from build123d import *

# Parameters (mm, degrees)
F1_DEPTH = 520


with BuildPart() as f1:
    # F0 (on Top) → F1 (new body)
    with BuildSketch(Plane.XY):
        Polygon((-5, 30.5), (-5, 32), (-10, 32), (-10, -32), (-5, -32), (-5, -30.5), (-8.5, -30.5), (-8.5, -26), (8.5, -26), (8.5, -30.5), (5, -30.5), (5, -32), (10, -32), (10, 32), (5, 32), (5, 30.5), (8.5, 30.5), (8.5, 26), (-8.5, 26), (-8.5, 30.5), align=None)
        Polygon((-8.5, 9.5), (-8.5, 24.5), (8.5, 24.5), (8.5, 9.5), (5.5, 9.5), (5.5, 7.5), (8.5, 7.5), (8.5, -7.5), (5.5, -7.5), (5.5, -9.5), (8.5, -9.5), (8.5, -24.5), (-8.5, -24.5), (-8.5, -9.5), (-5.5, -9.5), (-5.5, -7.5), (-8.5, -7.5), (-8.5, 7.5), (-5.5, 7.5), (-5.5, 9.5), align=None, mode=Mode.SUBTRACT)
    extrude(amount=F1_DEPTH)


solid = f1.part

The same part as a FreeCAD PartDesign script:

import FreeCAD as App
import Part
import Sketcher

V = App.Vector
Q = App.Units.Quantity

doc = App.newDocument("Part")
params = doc.addObject("Spreadsheet::Sheet", "Params")
for row, (alias, value) in enumerate([
    ("sketch1_width", "5 mm"),
    ("sketch1_width2", "17 mm"),
    ("sketch1_width3", "3 mm"),
    ("sketch1_height", "64 mm"),
    ("sketch1_height2", "15 mm"),
    ("pad1_length", "520 mm"),
], start=1):
    params.set(f"A{row}", alias)
    params.set(f"B{row}", "=" + value)
    params.setAlias(f"B{row}", alias)

body = doc.addObject("PartDesign::Body", "Body")

# Sketch on XY plane
sketch1 = body.newObject("Sketcher::SketchObject", "Sketch")
sketch1.AttachmentSupport = (doc.getObject("XY_Plane"), [""])
sketch1.MapMode = "FlatFace"
sketch1.addGeometry(Part.LineSegment(V(-5, 30.5, 0), V(-5, 32, 0)), False)
sketch1.addGeometry(Part.LineSegment(V(-5, 32, 0), V(-10, 32, 0)), False)
sketch1.addGeometry(Part.LineSegment(V(-10, 32, 0), V(-10, -32, 0)), False)
sketch1.addGeometry(Part.LineSegment(V(-10, -32, 0), V(-5, -32, 0)), False)
sketch1.addGeometry(Part.LineSegment(V(-5, -32, 0), V(-5, -30.5, 0)), False)
sketch1.addGeometry(Part.LineSegment(V(-5, -30.5, 0), V(-8.5, -30.5, 0)), False)
sketch1.addGeometry(Part.LineSegment(V(-8.5, -30.5, 0), V(-8.5, -26, 0)), False)
sketch1.addGeometry(Part.LineSegment(V(-8.5, -26, 0), V(8.5, -26, 0)), False)
sketch1.addGeometry(Part.LineSegment(V(8.5, -26, 0), V(8.5, -30.5, 0)), False)
sketch1.addGeometry(Part.LineSegment(V(8.5, -30.5, 0), V(5, -30.5, 0)), False)
sketch1.addGeometry(Part.LineSegment(V(5, -30.5, 0), V(5, -32, 0)), False)
sketch1.addGeometry(Part.LineSegment(V(5, -32, 0), V(10, -32, 0)), False)
sketch1.addGeometry(Part.LineSegment(V(10, -32, 0), V(10, 32, 0)), False)
sketch1.addGeometry(Part.LineSegment(V(10, 32, 0), V(5, 32, 0)), False)
sketch1.addGeometry(Part.LineSegment(V(5, 32, 0), V(5, 30.5, 0)), False)
sketch1.addGeometry(Part.LineSegment(V(5, 30.5, 0), V(8.5, 30.5, 0)), False)
sketch1.addGeometry(Part.LineSegment(V(8.5, 30.5, 0), V(8.5, 26, 0)), False)
sketch1.addGeometry(Part.LineSegment(V(8.5, 26, 0), V(-8.5, 26, 0)), False)
sketch1.addGeometry(Part.LineSegment(V(-8.5, 26, 0), V(-8.5, 30.5, 0)), False)
sketch1.addGeometry(Part.LineSegment(V(-8.5, 30.5, 0), V(-5, 30.5, 0)), False)
sketch1.addGeometry(Part.LineSegment(V(-5.5, 9.5, 0), V(-8.5, 9.5, 0)), False)
sketch1.addGeometry(Part.LineSegment(V(-8.5, 9.5, 0), V(-8.5, 24.5, 0)), False)
sketch1.addGeometry(Part.LineSegment(V(-8.5, 24.5, 0), V(8.5, 24.5, 0)), False)
sketch1.addGeometry(Part.LineSegment(V(8.5, 24.5, 0), V(8.5, 9.5, 0)), False)
sketch1.addGeometry(Part.LineSegment(V(8.5, 9.5, 0), V(5.5, 9.5, 0)), False)
sketch1.addGeometry(Part.LineSegment(V(5.5, 9.5, 0), V(5.5, 7.5, 0)), False)
sketch1.addGeometry(Part.LineSegment(V(5.5, 7.5, 0), V(8.5, 7.5, 0)), False)
sketch1.addGeometry(Part.LineSegment(V(8.5, 7.5, 0), V(8.5, -7.5, 0)), False)
sketch1.addGeometry(Part.LineSegment(V(8.5, -7.5, 0), V(5.5, -7.5, 0)), False)
sketch1.addGeometry(Part.LineSegment(V(5.5, -7.5, 0), V(5.5, -9.5, 0)), False)
sketch1.addGeometry(Part.LineSegment(V(5.5, -9.5, 0), V(8.5, -9.5, 0)), False)
sketch1.addGeometry(Part.LineSegment(V(8.5, -9.5, 0), V(8.5, -24.5, 0)), False)
sketch1.addGeometry(Part.LineSegment(V(8.5, -24.5, 0), V(-8.5, -24.5, 0)), False)
sketch1.addGeometry(Part.LineSegment(V(-8.5, -24.5, 0), V(-8.5, -9.5, 0)), False)
sketch1.addGeometry(Part.LineSegment(V(-8.5, -9.5, 0), V(-5.5, -9.5, 0)), False)
sketch1.addGeometry(Part.LineSegment(V(-5.5, -9.5, 0), V(-5.5, -7.5, 0)), False)
sketch1.addGeometry(Part.LineSegment(V(-5.5, -7.5, 0), V(-8.5, -7.5, 0)), False)
sketch1.addGeometry(Part.LineSegment(V(-8.5, -7.5, 0), V(-8.5, 7.5, 0)), False)
sketch1.addGeometry(Part.LineSegment(V(-8.5, 7.5, 0), V(-5.5, 7.5, 0)), False)
sketch1.addGeometry(Part.LineSegment(V(-5.5, 7.5, 0), V(-5.5, 9.5, 0)), False)
sketch1.addConstraint(Sketcher.Constraint("Coincident", 0, 2, 1, 1))
sketch1.addConstraint(Sketcher.Constraint("Coincident", 1, 2, 2, 1))
sketch1.addConstraint(Sketcher.Constraint("Coincident", 2, 2, 3, 1))
sketch1.addConstraint(Sketcher.Constraint("Coincident", 3, 2, 4, 1))
sketch1.addConstraint(Sketcher.Constraint("Coincident", 4, 2, 5, 1))
sketch1.addConstraint(Sketcher.Constraint("Coincident", 5, 2, 6, 1))
sketch1.addConstraint(Sketcher.Constraint("Coincident", 6, 2, 7, 1))
sketch1.addConstraint(Sketcher.Constraint("Coincident", 7, 2, 8, 1))
sketch1.addConstraint(Sketcher.Constraint("Coincident", 8, 2, 9, 1))
sketch1.addConstraint(Sketcher.Constraint("Coincident", 9, 2, 10, 1))
sketch1.addConstraint(Sketcher.Constraint("Coincident", 10, 2, 11, 1))
sketch1.addConstraint(Sketcher.Constraint("Coincident", 11, 2, 12, 1))
sketch1.addConstraint(Sketcher.Constraint("Coincident", 12, 2, 13, 1))
sketch1.addConstraint(Sketcher.Constraint("Coincident", 13, 2, 14, 1))
sketch1.addConstraint(Sketcher.Constraint("Coincident", 14, 2, 15, 1))
sketch1.addConstraint(Sketcher.Constraint("Coincident", 15, 2, 16, 1))
sketch1.addConstraint(Sketcher.Constraint("Coincident", 16, 2, 17, 1))
sketch1.addConstraint(Sketcher.Constraint("Coincident", 17, 2, 18, 1))
sketch1.addConstraint(Sketcher.Constraint("Coincident", 18, 2, 19, 1))
sketch1.addConstraint(Sketcher.Constraint("Coincident", 19, 2, 0, 1))
sketch1.addConstraint(Sketcher.Constraint("Coincident", 20, 2, 21, 1))
sketch1.addConstraint(Sketcher.Constraint("Coincident", 21, 2, 22, 1))
sketch1.addConstraint(Sketcher.Constraint("Coincident", 22, 2, 23, 1))
sketch1.addConstraint(Sketcher.Constraint("Coincident", 23, 2, 24, 1))
sketch1.addConstraint(Sketcher.Constraint("Coincident", 24, 2, 25, 1))
sketch1.addConstraint(Sketcher.Constraint("Coincident", 25, 2, 26, 1))
sketch1.addConstraint(Sketcher.Constraint("Coincident", 26, 2, 27, 1))
sketch1.addConstraint(Sketcher.Constraint("Coincident", 27, 2, 28, 1))
sketch1.addConstraint(Sketcher.Constraint("Coincident", 28, 2, 29, 1))
sketch1.addConstraint(Sketcher.Constraint("Coincident", 29, 2, 30, 1))
sketch1.addConstraint(Sketcher.Constraint("Coincident", 30, 2, 31, 1))
sketch1.addConstraint(Sketcher.Constraint("Coincident", 31, 2, 32, 1))
sketch1.addConstraint(Sketcher.Constraint("Coincident", 32, 2, 33, 1))
sketch1.addConstraint(Sketcher.Constraint("Coincident", 33, 2, 34, 1))
sketch1.addConstraint(Sketcher.Constraint("Coincident", 34, 2, 35, 1))
sketch1.addConstraint(Sketcher.Constraint("Coincident", 35, 2, 36, 1))
sketch1.addConstraint(Sketcher.Constraint("Coincident", 36, 2, 37, 1))
sketch1.addConstraint(Sketcher.Constraint("Coincident", 37, 2, 38, 1))
sketch1.addConstraint(Sketcher.Constraint("Coincident", 38, 2, 39, 1))
sketch1.addConstraint(Sketcher.Constraint("Coincident", 39, 2, 20, 1))
sketch1.addConstraint(Sketcher.Constraint("Vertical", 0))
sketch1.addConstraint(Sketcher.Constraint("Horizontal", 1))
sketch1.addConstraint(Sketcher.Constraint("Vertical", 2))
sketch1.addConstraint(Sketcher.Constraint("Horizontal", 3))
sketch1.addConstraint(Sketcher.Constraint("Vertical", 4))
sketch1.addConstraint(Sketcher.Constraint("Horizontal", 5))
sketch1.addConstraint(Sketcher.Constraint("Vertical", 6))
sketch1.addConstraint(Sketcher.Constraint("Horizontal", 7))
sketch1.addConstraint(Sketcher.Constraint("Vertical", 8))
sketch1.addConstraint(Sketcher.Constraint("Horizontal", 9))
sketch1.addConstraint(Sketcher.Constraint("Vertical", 10))
sketch1.addConstraint(Sketcher.Constraint("Horizontal", 11))
sketch1.addConstraint(Sketcher.Constraint("Vertical", 12))
sketch1.addConstraint(Sketcher.Constraint("Horizontal", 13))
sketch1.addConstraint(Sketcher.Constraint("Vertical", 14))
sketch1.addConstraint(Sketcher.Constraint("Horizontal", 15))
sketch1.addConstraint(Sketcher.Constraint("Vertical", 16))
sketch1.addConstraint(Sketcher.Constraint("Horizontal", 17))
sketch1.addConstraint(Sketcher.Constraint("Vertical", 18))
sketch1.addConstraint(Sketcher.Constraint("Horizontal", 19))
sketch1.addConstraint(Sketcher.Constraint("Horizontal", 20))
sketch1.addConstraint(Sketcher.Constraint("Vertical", 21))
sketch1.addConstraint(Sketcher.Constraint("Horizontal", 22))
sketch1.addConstraint(Sketcher.Constraint("Vertical", 23))
sketch1.addConstraint(Sketcher.Constraint("Horizontal", 24))
sketch1.addConstraint(Sketcher.Constraint("Vertical", 25))
sketch1.addConstraint(Sketcher.Constraint("Horizontal", 26))
sketch1.addConstraint(Sketcher.Constraint("Vertical", 27))
sketch1.addConstraint(Sketcher.Constraint("Horizontal", 28))
sketch1.addConstraint(Sketcher.Constraint("Vertical", 29))
sketch1.addConstraint(Sketcher.Constraint("Horizontal", 30))
sketch1.addConstraint(Sketcher.Constraint("Vertical", 31))
sketch1.addConstraint(Sketcher.Constraint("Horizontal", 32))
sketch1.addConstraint(Sketcher.Constraint("Vertical", 33))
sketch1.addConstraint(Sketcher.Constraint("Horizontal", 34))
sketch1.addConstraint(Sketcher.Constraint("Vertical", 35))
sketch1.addConstraint(Sketcher.Constraint("Horizontal", 36))
sketch1.addConstraint(Sketcher.Constraint("Vertical", 37))
sketch1.addConstraint(Sketcher.Constraint("Horizontal", 38))
sketch1.addConstraint(Sketcher.Constraint("Vertical", 39))
sketch1.addConstraint(Sketcher.Constraint("Symmetric", 0, 2, 10, 2, -1, 1))
sketch1.addConstraint(Sketcher.Constraint("Symmetric", 2, 2, 12, 2, -1, 1))
sketch1.addConstraint(Sketcher.Constraint("Symmetric", 4, 2, 14, 2, -1, 1))
sketch1.addConstraint(Sketcher.Constraint("Symmetric", 6, 2, 16, 2, -1, 1))
sketch1.addConstraint(Sketcher.Constraint("Symmetric", 8, 2, 18, 2, -1, 1))
sketch1.addConstraint(Sketcher.Constraint("Symmetric", 20, 2, 30, 2, -1, 1))
sketch1.addConstraint(Sketcher.Constraint("Symmetric", 22, 2, 32, 2, -1, 1))
sketch1.addConstraint(Sketcher.Constraint("Symmetric", 24, 2, 34, 2, -1, 1))
sketch1.addConstraint(Sketcher.Constraint("Symmetric", 26, 2, 36, 2, -1, 1))
sketch1.addConstraint(Sketcher.Constraint("Symmetric", 28, 2, 38, 2, -1, 1))
sketch1.addConstraint(Sketcher.Constraint("Symmetric", 5, 2, 8, 2, -2))
sketch1.addConstraint(Sketcher.Constraint("Symmetric", 3, 2, 10, 2, -2))
sketch1.addConstraint(Sketcher.Constraint("Symmetric", 20, 2, 23, 2, -2))
sketch1.addConstraint(Sketcher.Constraint("Symmetric", 28, 2, 35, 2, -2))
sketch1.addConstraint(Sketcher.Constraint("Vertical", 18, 2, 20, 2))
sketch1.addConstraint(Sketcher.Constraint("Vertical", 23, 2, 26, 2))
sketch1.addConstraint(Sketcher.Constraint("Equal", 23, 27))
sketch1.addConstraint(Sketcher.Constraint("DistanceX", 1, 2, 1, 1, Q("5 mm")))
sketch1.addConstraint(Sketcher.Constraint("DistanceX", 7, 1, 7, 2, Q("17 mm")))
sketch1.addConstraint(Sketcher.Constraint("DistanceX", 20, 2, 20, 1, Q("3 mm")))
sketch1.addConstraint(Sketcher.Constraint("DistanceY", 2, 2, 2, 1, Q("64 mm")))
sketch1.addConstraint(Sketcher.Constraint("DistanceY", 21, 1, 21, 2, Q("15 mm")))
sketch1.addConstraint(Sketcher.Constraint("DistanceY", 25, 2, 25, 1, Q("2 mm")))
sketch1.addConstraint(Sketcher.Constraint("DistanceX", 5, 2, 5, 1, Q("3.5 mm")))
sketch1.addConstraint(Sketcher.Constraint("DistanceY", 0, 1, 0, 2, Q("1.5 mm")))
sketch1.addConstraint(Sketcher.Constraint("DistanceY", 6, 1, 6, 2, Q("4.5 mm")))
sketch1.setExpression("Constraints[97]", "Params.sketch1_width")
sketch1.setExpression("Constraints[98]", "Params.sketch1_width2")
sketch1.setExpression("Constraints[99]", "Params.sketch1_width3")
sketch1.setExpression("Constraints[100]", "Params.sketch1_height")
sketch1.setExpression("Constraints[101]", "Params.sketch1_height2")
pad1 = body.newObject("PartDesign::Pad", "Pad")
pad1.Profile = sketch1
pad1.setExpression("Length", "Params.pad1_length")

doc.recompute()
